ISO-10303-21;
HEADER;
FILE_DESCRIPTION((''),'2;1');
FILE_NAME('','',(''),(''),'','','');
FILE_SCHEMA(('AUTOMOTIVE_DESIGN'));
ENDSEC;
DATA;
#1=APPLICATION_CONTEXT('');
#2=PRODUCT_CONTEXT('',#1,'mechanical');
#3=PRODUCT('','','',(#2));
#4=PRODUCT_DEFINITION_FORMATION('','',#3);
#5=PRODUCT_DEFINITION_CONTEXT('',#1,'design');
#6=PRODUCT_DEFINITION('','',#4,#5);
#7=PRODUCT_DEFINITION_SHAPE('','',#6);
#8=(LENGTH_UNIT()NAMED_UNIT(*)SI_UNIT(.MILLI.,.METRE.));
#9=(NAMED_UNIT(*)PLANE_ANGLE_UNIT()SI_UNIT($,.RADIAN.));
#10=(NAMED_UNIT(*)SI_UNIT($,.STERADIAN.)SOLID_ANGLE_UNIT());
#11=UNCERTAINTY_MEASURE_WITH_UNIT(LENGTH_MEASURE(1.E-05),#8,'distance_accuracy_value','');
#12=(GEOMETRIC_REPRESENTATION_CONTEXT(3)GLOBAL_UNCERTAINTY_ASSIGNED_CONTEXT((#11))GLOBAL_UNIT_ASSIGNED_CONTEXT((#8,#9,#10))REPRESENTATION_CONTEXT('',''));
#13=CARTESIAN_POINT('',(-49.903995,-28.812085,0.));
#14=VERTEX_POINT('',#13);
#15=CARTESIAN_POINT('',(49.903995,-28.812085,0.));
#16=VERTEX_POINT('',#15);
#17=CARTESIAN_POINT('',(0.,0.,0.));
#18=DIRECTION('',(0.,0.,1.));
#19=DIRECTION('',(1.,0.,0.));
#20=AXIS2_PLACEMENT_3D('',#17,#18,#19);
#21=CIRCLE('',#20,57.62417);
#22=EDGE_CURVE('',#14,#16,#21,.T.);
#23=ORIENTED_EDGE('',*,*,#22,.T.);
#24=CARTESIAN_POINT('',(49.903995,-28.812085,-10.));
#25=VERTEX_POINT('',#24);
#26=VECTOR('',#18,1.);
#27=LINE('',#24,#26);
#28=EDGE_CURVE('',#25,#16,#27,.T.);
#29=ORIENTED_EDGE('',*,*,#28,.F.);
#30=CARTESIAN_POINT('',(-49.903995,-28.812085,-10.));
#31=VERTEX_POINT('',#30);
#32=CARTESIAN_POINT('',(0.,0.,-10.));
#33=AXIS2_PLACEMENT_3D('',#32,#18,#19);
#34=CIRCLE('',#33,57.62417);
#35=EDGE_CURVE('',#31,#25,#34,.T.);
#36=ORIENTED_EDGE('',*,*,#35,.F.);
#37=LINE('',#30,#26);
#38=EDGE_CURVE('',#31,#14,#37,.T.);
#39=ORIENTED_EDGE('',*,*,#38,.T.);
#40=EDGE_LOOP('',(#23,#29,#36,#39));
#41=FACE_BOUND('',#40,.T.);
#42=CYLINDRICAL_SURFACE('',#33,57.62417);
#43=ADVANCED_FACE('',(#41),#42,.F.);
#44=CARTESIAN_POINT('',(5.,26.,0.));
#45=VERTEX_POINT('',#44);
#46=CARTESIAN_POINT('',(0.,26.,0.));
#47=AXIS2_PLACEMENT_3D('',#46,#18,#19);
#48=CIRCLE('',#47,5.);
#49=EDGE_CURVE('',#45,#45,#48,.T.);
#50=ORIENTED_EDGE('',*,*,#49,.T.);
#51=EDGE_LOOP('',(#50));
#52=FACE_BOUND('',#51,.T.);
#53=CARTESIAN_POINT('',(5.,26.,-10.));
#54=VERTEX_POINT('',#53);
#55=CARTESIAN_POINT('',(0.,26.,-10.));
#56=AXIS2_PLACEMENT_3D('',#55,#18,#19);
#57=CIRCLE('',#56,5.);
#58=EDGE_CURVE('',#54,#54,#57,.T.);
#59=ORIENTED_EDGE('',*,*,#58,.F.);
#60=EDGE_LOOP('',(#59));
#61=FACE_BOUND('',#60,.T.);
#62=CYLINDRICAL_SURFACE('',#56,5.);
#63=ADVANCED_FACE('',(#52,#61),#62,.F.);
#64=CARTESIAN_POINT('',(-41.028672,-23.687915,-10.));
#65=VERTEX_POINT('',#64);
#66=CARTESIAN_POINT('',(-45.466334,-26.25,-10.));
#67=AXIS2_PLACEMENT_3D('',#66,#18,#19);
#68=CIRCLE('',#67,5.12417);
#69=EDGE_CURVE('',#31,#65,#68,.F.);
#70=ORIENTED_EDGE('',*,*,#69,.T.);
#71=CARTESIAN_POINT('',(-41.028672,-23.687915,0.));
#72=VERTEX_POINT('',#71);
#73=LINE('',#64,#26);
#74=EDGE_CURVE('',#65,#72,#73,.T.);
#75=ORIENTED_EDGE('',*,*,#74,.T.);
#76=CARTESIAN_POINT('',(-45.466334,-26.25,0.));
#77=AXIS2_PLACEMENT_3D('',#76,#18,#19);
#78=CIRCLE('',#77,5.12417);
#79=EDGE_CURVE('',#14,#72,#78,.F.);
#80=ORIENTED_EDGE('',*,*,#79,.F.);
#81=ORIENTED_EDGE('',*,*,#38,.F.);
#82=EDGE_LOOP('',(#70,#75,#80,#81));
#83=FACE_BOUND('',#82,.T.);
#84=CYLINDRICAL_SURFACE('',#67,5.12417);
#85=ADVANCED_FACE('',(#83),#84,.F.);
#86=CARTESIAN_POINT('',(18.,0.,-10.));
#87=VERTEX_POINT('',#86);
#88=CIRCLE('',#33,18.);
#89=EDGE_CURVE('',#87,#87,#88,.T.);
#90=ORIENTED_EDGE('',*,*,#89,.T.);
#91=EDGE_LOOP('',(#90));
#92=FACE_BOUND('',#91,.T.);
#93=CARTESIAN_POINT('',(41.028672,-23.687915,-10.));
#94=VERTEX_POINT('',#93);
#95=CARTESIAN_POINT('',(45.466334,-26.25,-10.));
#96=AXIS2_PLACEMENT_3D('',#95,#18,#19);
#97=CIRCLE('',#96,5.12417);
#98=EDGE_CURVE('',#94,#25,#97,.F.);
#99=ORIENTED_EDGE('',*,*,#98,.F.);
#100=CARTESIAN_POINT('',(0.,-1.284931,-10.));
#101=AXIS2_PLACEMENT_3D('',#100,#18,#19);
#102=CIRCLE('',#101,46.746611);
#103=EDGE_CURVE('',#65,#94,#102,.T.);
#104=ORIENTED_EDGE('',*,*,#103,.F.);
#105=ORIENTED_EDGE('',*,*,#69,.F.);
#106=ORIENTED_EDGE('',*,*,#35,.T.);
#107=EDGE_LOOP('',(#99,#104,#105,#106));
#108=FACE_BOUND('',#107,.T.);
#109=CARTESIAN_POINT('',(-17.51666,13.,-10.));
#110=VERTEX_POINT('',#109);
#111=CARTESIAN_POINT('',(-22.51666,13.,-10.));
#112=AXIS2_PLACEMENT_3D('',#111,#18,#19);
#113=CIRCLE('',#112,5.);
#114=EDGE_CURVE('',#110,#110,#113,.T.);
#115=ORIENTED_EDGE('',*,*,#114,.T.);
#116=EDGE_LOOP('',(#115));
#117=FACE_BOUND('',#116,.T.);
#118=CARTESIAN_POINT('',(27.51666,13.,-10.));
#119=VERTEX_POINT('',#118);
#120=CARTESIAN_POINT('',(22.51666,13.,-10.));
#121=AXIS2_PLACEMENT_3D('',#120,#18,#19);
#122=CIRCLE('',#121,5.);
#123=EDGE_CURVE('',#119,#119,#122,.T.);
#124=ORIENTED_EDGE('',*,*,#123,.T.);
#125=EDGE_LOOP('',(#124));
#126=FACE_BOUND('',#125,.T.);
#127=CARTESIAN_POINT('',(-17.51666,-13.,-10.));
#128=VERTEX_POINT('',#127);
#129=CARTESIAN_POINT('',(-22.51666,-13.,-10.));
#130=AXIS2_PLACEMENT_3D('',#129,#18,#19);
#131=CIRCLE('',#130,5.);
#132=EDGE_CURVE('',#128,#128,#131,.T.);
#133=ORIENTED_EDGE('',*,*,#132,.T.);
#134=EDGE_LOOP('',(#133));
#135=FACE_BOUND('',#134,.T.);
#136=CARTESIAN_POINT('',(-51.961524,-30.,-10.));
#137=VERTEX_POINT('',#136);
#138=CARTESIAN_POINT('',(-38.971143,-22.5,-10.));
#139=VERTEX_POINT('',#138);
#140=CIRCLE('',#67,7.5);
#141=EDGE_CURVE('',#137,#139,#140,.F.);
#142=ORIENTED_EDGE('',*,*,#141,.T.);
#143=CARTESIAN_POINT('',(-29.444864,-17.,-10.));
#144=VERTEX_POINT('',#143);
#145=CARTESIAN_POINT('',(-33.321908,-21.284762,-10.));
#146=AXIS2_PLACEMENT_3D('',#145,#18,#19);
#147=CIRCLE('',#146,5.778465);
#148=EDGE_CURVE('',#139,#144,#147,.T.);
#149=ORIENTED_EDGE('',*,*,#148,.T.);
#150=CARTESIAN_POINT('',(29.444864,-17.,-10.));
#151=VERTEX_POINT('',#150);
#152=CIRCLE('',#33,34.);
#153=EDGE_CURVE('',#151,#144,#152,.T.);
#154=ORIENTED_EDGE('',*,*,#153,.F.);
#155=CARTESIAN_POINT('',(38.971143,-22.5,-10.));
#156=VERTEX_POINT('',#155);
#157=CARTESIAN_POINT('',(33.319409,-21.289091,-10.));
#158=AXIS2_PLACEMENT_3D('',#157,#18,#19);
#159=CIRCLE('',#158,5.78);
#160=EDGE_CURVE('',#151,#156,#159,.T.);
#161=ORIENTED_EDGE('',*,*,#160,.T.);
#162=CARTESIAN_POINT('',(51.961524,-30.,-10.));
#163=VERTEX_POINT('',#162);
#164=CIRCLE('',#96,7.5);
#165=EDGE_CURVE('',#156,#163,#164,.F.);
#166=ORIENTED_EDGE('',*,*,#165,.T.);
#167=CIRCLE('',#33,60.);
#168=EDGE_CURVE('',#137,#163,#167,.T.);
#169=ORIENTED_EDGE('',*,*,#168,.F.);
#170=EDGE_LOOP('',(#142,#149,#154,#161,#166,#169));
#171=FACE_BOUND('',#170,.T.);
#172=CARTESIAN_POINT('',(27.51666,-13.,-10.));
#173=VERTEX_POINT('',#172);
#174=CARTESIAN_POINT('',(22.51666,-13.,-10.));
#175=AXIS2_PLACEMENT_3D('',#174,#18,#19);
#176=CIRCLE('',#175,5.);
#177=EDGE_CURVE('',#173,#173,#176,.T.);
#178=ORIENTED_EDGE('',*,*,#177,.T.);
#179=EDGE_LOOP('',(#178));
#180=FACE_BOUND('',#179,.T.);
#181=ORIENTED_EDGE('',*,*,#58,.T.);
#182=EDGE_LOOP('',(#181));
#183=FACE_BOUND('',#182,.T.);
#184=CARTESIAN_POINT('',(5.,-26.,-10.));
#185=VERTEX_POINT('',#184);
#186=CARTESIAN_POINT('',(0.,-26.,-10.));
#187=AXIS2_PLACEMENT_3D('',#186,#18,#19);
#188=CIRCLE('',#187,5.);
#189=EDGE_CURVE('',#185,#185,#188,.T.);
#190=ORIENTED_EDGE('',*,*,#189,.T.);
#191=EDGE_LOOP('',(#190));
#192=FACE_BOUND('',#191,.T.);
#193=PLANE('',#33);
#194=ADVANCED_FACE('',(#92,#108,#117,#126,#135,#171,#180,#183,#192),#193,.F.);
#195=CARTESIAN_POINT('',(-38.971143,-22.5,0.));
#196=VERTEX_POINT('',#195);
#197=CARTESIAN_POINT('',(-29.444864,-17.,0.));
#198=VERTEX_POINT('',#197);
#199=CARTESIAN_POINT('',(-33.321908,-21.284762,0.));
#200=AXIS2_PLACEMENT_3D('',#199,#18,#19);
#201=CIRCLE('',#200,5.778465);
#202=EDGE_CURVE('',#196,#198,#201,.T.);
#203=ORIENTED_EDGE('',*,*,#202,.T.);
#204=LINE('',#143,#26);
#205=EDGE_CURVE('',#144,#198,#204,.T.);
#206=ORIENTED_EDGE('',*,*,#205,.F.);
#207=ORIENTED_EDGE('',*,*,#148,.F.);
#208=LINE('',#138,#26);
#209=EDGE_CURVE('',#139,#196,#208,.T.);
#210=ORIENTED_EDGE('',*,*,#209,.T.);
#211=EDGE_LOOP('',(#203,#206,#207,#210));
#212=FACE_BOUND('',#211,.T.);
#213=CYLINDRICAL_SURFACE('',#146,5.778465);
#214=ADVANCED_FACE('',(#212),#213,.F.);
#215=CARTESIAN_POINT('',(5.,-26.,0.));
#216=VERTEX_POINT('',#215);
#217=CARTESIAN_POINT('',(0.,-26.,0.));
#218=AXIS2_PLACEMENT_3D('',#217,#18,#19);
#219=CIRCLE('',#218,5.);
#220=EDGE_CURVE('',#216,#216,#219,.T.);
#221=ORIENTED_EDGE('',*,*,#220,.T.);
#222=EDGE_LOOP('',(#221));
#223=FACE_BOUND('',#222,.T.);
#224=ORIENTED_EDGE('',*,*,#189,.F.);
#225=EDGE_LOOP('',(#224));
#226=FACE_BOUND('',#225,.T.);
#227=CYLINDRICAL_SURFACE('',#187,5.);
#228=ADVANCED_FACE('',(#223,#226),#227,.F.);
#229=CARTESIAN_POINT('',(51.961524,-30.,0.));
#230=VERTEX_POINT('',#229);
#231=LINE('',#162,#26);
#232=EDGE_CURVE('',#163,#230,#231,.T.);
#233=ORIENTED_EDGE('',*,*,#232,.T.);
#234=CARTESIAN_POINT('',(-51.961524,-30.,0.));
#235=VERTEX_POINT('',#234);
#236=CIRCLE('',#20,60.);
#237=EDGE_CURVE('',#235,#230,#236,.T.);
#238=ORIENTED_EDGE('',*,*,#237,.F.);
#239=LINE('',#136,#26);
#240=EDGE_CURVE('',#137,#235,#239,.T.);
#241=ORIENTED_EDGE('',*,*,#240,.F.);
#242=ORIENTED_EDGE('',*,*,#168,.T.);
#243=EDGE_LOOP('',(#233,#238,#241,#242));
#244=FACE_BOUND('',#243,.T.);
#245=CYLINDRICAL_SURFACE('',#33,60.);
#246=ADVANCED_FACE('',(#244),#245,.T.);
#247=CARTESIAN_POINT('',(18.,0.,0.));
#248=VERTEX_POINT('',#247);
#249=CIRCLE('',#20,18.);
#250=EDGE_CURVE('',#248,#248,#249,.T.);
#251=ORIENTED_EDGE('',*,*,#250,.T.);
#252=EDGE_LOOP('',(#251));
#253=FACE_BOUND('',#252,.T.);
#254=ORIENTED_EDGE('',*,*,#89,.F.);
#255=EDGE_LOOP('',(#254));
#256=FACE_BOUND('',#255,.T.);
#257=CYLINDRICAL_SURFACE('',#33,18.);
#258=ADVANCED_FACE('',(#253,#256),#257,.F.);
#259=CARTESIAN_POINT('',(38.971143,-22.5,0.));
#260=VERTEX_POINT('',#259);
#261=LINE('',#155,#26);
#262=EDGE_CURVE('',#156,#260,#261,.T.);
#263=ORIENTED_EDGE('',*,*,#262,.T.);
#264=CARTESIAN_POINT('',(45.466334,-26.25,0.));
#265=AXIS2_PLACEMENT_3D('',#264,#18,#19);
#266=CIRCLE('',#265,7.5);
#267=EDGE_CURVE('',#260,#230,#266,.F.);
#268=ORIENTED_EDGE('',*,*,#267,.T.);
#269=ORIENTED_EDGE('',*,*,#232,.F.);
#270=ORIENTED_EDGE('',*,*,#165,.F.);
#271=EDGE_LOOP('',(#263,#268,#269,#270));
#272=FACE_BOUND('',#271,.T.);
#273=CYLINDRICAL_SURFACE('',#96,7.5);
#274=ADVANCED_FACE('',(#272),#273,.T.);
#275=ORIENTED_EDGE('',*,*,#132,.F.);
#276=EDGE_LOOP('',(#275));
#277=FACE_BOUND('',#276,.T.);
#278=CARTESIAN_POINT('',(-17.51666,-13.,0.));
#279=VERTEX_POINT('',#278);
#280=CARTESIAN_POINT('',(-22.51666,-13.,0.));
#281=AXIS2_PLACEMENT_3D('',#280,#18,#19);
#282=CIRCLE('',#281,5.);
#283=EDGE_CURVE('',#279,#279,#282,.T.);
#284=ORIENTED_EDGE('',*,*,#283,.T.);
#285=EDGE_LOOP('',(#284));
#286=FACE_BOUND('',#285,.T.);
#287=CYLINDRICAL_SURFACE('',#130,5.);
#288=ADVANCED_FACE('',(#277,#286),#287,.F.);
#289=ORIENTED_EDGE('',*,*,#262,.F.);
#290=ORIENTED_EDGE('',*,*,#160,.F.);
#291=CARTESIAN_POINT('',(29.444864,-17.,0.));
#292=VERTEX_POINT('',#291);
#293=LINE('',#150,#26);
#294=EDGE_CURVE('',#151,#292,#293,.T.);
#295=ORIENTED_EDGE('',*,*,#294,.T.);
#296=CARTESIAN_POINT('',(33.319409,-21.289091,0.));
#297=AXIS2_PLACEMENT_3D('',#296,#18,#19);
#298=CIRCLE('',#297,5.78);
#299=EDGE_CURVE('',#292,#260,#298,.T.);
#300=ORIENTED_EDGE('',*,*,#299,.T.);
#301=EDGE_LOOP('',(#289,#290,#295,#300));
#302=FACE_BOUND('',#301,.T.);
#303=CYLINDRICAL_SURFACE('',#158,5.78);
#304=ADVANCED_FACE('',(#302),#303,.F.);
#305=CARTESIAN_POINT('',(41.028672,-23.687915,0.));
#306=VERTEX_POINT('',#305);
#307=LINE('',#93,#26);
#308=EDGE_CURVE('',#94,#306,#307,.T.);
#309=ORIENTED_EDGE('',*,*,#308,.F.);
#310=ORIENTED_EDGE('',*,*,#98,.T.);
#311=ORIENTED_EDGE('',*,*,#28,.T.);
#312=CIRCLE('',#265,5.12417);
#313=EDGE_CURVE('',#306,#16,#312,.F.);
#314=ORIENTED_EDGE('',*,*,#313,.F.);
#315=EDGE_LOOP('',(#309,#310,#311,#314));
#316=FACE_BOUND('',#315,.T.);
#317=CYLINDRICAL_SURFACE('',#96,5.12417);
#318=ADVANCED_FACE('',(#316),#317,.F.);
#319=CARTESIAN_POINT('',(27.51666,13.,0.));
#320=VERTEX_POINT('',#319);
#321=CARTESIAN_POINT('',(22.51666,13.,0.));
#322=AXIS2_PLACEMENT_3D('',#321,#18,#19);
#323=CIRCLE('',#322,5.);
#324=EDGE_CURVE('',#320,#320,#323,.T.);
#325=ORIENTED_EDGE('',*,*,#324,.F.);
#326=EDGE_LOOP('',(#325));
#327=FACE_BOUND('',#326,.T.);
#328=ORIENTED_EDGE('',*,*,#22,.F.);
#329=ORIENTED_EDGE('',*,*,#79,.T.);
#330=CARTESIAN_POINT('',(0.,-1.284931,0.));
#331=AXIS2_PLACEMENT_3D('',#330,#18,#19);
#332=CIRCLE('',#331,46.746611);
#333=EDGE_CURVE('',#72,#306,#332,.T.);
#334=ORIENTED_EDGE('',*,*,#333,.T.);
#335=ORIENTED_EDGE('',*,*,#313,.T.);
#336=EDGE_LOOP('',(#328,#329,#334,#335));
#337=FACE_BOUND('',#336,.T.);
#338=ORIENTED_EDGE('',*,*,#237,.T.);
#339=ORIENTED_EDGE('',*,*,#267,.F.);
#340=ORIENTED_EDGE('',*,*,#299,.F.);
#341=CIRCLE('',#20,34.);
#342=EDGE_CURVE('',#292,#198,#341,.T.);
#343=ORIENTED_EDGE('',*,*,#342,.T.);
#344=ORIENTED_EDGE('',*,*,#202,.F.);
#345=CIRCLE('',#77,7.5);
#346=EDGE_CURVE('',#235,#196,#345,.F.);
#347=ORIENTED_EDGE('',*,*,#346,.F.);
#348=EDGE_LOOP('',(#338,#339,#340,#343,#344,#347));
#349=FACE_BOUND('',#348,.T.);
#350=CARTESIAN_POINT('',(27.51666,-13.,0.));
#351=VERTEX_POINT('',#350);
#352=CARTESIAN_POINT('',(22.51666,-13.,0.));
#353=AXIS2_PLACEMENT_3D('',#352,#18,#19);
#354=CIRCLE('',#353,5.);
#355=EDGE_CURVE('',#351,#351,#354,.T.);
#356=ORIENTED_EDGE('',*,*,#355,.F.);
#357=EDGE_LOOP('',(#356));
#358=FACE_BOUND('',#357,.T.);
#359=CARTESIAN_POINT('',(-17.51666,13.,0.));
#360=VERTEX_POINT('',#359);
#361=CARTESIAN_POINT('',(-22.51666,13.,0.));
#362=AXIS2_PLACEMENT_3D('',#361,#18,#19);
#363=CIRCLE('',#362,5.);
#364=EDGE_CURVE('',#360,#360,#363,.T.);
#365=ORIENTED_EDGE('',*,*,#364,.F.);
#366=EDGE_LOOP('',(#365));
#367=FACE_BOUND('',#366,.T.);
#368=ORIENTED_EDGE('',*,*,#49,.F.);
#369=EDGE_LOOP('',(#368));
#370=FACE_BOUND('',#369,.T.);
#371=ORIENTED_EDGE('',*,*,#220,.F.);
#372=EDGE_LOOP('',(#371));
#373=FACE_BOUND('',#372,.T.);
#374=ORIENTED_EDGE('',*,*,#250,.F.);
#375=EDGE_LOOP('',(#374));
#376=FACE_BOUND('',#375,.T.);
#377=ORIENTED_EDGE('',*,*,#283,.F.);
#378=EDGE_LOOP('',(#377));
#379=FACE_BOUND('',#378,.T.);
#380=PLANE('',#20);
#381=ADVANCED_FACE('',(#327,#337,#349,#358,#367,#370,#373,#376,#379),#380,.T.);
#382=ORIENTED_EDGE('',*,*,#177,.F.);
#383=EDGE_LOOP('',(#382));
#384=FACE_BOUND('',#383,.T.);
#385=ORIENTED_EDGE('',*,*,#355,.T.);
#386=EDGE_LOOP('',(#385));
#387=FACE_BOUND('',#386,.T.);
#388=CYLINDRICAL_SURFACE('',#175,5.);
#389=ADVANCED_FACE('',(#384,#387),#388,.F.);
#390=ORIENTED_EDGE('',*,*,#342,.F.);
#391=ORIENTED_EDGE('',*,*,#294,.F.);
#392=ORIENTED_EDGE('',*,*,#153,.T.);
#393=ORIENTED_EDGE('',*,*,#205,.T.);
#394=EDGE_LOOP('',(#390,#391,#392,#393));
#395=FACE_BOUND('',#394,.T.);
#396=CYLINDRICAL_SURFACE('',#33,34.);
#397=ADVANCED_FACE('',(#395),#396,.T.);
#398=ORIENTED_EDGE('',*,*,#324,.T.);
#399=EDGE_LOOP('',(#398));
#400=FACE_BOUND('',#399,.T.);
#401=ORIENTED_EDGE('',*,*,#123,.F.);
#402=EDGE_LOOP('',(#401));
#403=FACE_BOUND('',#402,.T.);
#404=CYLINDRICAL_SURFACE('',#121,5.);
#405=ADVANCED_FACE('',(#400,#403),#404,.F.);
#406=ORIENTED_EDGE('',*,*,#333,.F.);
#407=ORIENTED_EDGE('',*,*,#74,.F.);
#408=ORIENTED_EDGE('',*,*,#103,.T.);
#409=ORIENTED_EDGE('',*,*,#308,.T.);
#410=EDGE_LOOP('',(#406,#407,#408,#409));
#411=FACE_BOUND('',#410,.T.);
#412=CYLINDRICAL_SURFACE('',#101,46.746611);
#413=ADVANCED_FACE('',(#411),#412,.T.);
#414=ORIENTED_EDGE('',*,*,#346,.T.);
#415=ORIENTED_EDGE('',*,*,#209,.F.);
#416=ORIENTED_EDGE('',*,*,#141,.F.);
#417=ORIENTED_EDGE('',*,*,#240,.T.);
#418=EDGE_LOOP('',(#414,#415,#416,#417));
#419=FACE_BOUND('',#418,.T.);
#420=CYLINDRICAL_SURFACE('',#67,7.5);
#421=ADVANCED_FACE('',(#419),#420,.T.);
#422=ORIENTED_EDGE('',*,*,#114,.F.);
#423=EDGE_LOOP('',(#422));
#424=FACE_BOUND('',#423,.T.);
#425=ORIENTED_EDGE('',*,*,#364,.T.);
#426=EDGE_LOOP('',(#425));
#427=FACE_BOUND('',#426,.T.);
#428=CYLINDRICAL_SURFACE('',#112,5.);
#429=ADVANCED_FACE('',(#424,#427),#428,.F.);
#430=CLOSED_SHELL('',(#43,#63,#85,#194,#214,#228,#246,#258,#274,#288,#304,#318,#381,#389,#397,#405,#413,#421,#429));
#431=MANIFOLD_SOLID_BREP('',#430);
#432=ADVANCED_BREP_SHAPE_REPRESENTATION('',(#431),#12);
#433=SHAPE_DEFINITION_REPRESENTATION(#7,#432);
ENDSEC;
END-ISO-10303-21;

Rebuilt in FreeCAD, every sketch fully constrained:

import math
import FreeCAD as App
import Part
import Sketcher

V = App.Vector
Q = App.Units.Quantity

doc = App.newDocument("Part")
body = doc.addObject("PartDesign::Body", "Body")

# Sketch on XY plane
sketch1 = body.newObject("Sketcher::SketchObject", "Sketch")
sketch1.AttachmentSupport = (doc.getObject("XY_Plane"), [""])
sketch1.MapMode = "FlatFace"
sketch1.addGeometry(Part.ArcOfCircle(Part.Circle(V(0, 0, 0), V(0, 0, 1), 34), math.radians(-30), math.radians(210)), False)
sketch1.addGeometry(Part.ArcOfCircle(Part.Circle(V(-33.321908, -21.284762, 0), V(0, 0, 1), 5.778465), math.radians(-167.859796), math.radians(47.859796)), False)
sketch1.addGeometry(Part.ArcOfCircle(Part.Circle(V(-45.466334, -26.25, 0), V(0, 0, 1), 7.5), math.radians(30), math.radians(210)), False)
sketch1.addGeometry(Part.ArcOfCircle(Part.Circle(V(0, 0, 0), V(0, 0, 1), 60), math.radians(-150), math.radians(-30)), False)
sketch1.addGeometry(Part.ArcOfCircle(Part.Circle(V(45.466334, -26.25, 0), V(0, 0, 1), 7.5), math.radians(-30), math.radians(150)), False)
sketch1.addGeometry(Part.ArcOfCircle(Part.Circle(V(33.319409, -21.289091, 0), V(0, 0, 1), 5.78), math.radians(132.093046), math.radians(347.906954)), False)
sketch1.addGeometry(Part.ArcOfCircle(Part.Circle(V(0, 0, 0), V(0, 0, 1), 57.62417), math.radians(-150), math.radians(-30)), False)
sketch1.addGeometry(Part.ArcOfCircle(Part.Circle(V(-45.466334, -26.25, 0), V(0, 0, 1), 5.12417), math.radians(30), math.radians(210)), False)
sketch1.addGeometry(Part.ArcOfCircle(Part.Circle(V(0, -1.284931, 0), V(0, 0, 1), 46.746611), math.radians(-151.36403), math.radians(-28.63597)), False)
sketch1.addGeometry(Part.ArcOfCircle(Part.Circle(V(45.466334, -26.25, 0), V(0, 0, 1), 5.12417), math.radians(-30), math.radians(150)), False)
sketch1.addGeometry(Part.Circle(V(0, -26, 0), V(0, 0, 1), 5), False)
sketch1.addGeometry(Part.Circle(V(-22.51666, -13, 0), V(0, 0, 1), 5), False)
sketch1.addGeometry(Part.Circle(V(-22.51666, 13, 0), V(0, 0, 1), 5), False)
sketch1.addGeometry(Part.Circle(V(22.51666, -13, 0), V(0, 0, 1), 5), False)
sketch1.addGeometry(Part.Circle(V(0, 0, 0), V(0, 0, 1), 18), False)
sketch1.addGeometry(Part.Circle(V(22.51666, 13, 0), V(0, 0, 1), 5), False)
sketch1.addGeometry(Part.Circle(V(0, 26, 0), V(0, 0, 1), 5), False)
sketch1.addConstraint(Sketcher.Constraint("Coincident", 0, 2, 1, 2))
sketch1.addConstraint(Sketcher.Constraint("Coincident", 1, 1, 2, 1))
sketch1.addConstraint(Sketcher.Constraint("Tangent", 2, 2, 3, 1))
sketch1.addConstraint(Sketcher.Constraint("Tangent", 3, 2, 4, 1))
sketch1.addConstraint(Sketcher.Constraint("Coincident", 4, 2, 5, 2))
sketch1.addConstraint(Sketcher.Constraint("Coincident", 5, 1, 0, 1))
sketch1.addConstraint(Sketcher.Constraint("Tangent", 6, 1, 7, 2))
sketch1.addConstraint(Sketcher.Constraint("Coincident", 7, 1, 8, 1))
sketch1.addConstraint(Sketcher.Constraint("Coincident", 8, 2, 9, 2))
sketch1.addConstraint(Sketcher.Constraint("Tangent", 9, 1, 6, 2))
sketch1.addConstraint(Sketcher.Constraint("Coincident", 0, 3, -1, 1))
sketch1.addConstraint(Sketcher.Constraint("Coincident", 3, 3, -1, 1))
sketch1.addConstraint(Sketcher.Constraint("Coincident", 6, 3, -1, 1))
sketch1.addConstraint(Sketcher.Constraint("Coincident", 14, 3, -1, 1))
sketch1.addConstraint(Sketcher.Constraint("Coincident", 7, 3, 2, 3))
sketch1.addConstraint(Sketcher.Constraint("Coincident", 9, 3, 4, 3))
sketch1.addConstraint(Sketcher.Constraint("Equal", 2, 4))
sketch1.addConstraint(Sketcher.Constraint("Equal", 10, 11))
sketch1.addConstraint(Sketcher.Constraint("Equal", 11, 12))
sketch1.addConstraint(Sketcher.Constraint("Equal", 12, 13))
sketch1.addConstraint(Sketcher.Constraint("Equal", 13, 15))
sketch1.addConstraint(Sketcher.Constraint("Equal", 15, 16))
sketch1.addConstraint(Sketcher.Constraint("Symmetric", 12, 3, 13, 3, -1, 1))
sketch1.addConstraint(Sketcher.Constraint("Symmetric", 11, 3, 15, 3, -1, 1))
sketch1.addConstraint(Sketcher.Constraint("Symmetric", 10, 3, 16, 3, -1, 1))
sketch1.addConstraint(Sketcher.Constraint("Symmetric", 11, 3, 13, 3, -2))
sketch1.addConstraint(Sketcher.Constraint("PointOnObject", 8, 3, -2))
sketch1.addConstraint(Sketcher.Constraint("PointOnObject", 10, 3, -2))
sketch1.addConstraint(Sketcher.Constraint("Horizontal", 2, 3, 4, 3))
sketch1.addConstraint(Sketcher.Constraint("Horizontal", 1, 1, 4, 2))
sketch1.addConstraint(Sketcher.Constraint("Horizontal", 0, 2, 5, 1))
sketch1.addConstraint(Sketcher.Constraint("Diameter", 10, Q("10 mm")))
sketch1.addConstraint(Sketcher.Constraint("Diameter", 14, Q("36 mm")))
sketch1.addConstraint(Sketcher.Constraint("Radius", 0, Q("34 mm")))
sketch1.addConstraint(Sketcher.Constraint("Radius", 3, Q("60 mm")))
sketch1.addConstraint(Sketcher.Constraint("Radius", 2, Q("7.5 mm")))
sketch1.addConstraint(Sketcher.Constraint("Radius", 5, Q("5.78 mm")))
sketch1.addConstraint(Sketcher.Constraint("DistanceY", 10, 3, -1, 1, Q("26 mm")))
sketch1.addConstraint(Sketcher.Constraint("DistanceY", 11, 3, -1, 1, Q("13 mm")))
sketch1.addConstraint(Sketcher.Constraint("DistanceY", 0, 2, -1, 1, Q("17 mm")))
sketch1.addConstraint(Sketcher.Constraint("DistanceY", 2, 2, -1, 1, Q("30 mm")))
sketch1.addConstraint(Sketcher.Constraint("DistanceY", 1, 1, -1, 1, Q("22.5 mm")))
sketch1.addConstraint(Sketcher.Constraint("Radius", 6, Q("57.62417 mm")))
sketch1.addConstraint(Sketcher.Constraint("Radius", 8, Q("46.746611 mm")))
sketch1.addConstraint(Sketcher.Constraint("Radius", 1, Q("5.778465 mm")))
sketch1.addConstraint(Sketcher.Constraint("DistanceY", 8, 3, -1, 1, Q("1.284931 mm")))
sketch1.addConstraint(Sketcher.Constraint("DistanceX", 11, 3, -1, 1, Q("22.51666 mm")))
pad1 = body.newObject("PartDesign::Pad", "Pad")
pad1.Profile = sketch1
pad1.Length = 10
pad1.Reversed = True

doc.recompute()
